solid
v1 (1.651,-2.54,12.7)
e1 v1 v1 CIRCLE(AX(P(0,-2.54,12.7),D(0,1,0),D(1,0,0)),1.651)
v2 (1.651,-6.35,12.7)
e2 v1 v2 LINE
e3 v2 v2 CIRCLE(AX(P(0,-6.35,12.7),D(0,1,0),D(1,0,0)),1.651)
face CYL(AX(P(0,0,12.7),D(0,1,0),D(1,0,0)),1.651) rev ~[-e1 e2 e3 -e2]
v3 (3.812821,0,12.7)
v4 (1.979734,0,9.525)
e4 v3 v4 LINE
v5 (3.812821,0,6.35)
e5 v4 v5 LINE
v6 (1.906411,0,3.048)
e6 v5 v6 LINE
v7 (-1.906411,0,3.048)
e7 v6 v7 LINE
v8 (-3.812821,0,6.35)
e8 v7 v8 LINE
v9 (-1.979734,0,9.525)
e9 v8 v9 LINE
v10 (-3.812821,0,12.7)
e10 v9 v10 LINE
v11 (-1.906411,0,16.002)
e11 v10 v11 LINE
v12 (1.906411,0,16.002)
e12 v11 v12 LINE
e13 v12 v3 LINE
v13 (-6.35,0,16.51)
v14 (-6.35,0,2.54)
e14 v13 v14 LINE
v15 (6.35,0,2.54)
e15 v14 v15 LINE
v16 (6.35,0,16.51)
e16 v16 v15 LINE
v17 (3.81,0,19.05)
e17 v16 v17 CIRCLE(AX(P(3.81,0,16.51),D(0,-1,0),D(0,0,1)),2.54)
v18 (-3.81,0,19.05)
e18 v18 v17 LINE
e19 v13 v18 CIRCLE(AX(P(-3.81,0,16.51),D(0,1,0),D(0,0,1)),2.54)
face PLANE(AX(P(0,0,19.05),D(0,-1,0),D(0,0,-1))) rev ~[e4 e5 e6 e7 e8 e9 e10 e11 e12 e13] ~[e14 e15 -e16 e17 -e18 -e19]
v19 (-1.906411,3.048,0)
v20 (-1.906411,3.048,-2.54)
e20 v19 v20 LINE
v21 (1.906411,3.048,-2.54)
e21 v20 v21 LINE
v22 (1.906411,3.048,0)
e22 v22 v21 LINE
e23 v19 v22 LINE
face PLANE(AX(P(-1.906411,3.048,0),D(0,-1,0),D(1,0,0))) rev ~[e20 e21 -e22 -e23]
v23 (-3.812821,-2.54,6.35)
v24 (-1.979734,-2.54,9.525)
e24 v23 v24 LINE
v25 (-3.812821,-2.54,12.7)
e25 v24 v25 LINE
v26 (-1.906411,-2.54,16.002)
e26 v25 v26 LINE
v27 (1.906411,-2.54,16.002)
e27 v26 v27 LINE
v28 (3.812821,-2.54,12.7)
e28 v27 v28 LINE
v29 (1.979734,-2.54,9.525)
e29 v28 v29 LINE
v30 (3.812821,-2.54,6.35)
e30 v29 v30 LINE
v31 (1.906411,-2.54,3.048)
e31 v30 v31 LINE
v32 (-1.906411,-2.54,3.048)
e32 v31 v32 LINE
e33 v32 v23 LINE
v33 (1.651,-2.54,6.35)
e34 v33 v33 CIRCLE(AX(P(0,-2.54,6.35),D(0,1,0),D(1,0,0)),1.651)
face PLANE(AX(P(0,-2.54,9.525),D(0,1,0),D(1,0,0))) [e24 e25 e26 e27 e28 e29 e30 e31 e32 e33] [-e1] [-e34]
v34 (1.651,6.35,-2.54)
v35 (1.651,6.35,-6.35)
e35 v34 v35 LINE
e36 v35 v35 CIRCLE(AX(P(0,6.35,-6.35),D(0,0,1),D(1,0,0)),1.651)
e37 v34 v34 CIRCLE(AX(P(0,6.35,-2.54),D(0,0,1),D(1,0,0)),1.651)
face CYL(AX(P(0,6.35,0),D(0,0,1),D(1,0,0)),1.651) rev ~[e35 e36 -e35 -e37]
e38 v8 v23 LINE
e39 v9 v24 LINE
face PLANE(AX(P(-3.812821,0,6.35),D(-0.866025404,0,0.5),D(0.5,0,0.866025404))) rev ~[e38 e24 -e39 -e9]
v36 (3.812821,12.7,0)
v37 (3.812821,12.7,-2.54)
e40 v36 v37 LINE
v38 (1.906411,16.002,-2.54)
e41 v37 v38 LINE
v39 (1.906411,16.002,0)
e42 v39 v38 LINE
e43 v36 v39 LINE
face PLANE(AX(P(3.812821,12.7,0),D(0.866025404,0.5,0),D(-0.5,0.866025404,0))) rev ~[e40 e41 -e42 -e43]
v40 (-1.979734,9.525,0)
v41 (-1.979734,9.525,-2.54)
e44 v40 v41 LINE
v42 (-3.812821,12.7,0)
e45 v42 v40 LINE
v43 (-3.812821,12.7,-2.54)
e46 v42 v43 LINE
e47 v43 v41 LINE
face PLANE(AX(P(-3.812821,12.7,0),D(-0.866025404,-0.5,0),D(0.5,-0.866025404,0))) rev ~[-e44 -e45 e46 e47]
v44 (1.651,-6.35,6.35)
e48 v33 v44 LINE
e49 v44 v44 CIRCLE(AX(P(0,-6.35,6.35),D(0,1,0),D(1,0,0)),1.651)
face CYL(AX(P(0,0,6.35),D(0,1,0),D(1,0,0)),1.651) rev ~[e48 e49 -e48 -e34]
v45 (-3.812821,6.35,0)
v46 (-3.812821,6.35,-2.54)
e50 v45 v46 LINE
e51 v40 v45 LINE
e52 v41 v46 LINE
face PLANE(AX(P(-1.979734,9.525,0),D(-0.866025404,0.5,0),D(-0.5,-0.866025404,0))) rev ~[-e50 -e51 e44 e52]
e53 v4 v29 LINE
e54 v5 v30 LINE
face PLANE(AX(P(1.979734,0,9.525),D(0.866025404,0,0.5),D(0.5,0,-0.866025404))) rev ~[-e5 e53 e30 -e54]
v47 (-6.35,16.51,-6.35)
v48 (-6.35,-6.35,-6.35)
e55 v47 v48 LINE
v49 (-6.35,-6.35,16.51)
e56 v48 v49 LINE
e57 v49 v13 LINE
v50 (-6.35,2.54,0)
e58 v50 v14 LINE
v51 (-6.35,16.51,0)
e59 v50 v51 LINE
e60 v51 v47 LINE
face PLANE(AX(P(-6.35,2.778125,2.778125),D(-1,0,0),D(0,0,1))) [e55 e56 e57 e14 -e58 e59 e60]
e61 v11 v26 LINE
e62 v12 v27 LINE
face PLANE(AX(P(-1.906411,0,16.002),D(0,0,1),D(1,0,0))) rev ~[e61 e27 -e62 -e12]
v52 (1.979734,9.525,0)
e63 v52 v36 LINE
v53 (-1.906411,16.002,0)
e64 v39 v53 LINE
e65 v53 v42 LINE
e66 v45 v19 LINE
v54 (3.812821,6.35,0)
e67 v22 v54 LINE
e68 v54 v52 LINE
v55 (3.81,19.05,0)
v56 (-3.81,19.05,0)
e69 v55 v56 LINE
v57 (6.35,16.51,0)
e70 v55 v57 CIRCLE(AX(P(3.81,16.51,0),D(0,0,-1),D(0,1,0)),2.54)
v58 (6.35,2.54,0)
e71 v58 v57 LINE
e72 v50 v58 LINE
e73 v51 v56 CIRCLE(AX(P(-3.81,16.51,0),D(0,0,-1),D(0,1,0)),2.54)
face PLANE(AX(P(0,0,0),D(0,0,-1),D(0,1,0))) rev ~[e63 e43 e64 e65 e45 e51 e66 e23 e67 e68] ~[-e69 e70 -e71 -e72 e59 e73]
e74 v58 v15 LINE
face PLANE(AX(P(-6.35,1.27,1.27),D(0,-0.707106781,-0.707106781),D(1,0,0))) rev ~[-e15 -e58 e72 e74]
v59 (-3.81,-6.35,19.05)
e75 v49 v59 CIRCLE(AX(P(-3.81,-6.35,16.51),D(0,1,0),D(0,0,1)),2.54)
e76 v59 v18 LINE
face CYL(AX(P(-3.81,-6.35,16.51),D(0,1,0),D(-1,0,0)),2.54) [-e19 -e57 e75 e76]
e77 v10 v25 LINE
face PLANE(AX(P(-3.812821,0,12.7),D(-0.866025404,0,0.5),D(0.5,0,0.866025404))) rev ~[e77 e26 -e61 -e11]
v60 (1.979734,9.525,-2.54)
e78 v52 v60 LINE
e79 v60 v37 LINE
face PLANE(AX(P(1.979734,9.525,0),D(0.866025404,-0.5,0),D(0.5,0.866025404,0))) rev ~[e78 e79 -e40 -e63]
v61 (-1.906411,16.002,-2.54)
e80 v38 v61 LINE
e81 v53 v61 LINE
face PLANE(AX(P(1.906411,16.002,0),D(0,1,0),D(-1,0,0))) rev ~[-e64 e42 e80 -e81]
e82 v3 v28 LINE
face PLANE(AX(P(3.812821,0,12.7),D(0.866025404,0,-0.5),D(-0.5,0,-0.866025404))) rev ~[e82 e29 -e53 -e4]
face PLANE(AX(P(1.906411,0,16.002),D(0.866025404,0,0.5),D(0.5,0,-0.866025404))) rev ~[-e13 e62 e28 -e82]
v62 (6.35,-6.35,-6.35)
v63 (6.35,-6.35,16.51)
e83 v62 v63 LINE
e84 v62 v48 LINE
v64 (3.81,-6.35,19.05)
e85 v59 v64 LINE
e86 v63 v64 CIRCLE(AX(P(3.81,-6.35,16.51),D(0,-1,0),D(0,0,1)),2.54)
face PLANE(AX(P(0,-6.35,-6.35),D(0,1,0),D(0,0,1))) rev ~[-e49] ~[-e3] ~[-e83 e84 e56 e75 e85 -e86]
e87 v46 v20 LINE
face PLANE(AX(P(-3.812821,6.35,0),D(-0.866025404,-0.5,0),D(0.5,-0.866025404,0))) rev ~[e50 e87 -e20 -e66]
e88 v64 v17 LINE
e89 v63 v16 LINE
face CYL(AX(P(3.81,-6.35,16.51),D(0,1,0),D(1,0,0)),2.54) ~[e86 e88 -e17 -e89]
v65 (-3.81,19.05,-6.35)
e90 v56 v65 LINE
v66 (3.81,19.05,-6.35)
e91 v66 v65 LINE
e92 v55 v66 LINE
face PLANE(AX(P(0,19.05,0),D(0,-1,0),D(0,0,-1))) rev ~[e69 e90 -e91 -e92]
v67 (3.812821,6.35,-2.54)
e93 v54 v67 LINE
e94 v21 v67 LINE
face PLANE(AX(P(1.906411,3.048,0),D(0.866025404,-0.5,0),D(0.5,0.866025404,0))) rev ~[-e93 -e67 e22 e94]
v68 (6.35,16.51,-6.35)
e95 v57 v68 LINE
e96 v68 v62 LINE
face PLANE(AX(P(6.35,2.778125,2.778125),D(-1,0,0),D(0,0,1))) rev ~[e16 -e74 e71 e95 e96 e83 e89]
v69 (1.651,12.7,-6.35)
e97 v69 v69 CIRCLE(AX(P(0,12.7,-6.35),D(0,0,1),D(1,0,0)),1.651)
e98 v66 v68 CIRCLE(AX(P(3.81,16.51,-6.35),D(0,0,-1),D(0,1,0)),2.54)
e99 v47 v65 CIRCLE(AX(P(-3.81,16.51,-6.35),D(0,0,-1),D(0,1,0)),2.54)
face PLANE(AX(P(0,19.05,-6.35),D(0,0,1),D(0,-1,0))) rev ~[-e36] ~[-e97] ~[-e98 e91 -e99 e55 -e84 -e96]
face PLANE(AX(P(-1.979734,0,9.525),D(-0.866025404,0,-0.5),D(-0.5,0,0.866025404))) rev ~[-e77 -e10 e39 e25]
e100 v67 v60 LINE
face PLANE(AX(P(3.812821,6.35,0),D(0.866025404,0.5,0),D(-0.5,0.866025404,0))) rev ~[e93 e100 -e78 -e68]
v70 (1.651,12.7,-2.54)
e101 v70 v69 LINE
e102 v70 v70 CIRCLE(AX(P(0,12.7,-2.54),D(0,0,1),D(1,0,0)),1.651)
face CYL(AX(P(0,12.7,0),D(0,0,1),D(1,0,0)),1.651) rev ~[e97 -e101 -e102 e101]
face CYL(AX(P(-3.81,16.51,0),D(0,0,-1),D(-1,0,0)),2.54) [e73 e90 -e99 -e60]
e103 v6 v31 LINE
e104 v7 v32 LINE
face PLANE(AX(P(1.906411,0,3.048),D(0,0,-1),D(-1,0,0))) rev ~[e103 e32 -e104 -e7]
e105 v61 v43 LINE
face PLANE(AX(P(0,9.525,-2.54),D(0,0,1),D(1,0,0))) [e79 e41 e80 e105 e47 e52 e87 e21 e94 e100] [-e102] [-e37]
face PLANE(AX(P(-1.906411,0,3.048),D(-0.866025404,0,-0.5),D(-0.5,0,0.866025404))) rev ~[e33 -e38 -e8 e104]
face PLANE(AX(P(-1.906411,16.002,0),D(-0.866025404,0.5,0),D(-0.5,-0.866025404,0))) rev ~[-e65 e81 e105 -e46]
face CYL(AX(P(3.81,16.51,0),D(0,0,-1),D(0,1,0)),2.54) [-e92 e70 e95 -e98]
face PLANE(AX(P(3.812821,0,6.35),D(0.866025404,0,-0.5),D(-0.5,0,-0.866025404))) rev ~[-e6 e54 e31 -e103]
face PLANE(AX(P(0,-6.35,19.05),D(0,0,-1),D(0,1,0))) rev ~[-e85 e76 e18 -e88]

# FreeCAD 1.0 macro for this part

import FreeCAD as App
import Part
import Sketcher
Q = App.Units.Quantity


def edges_at(feature, points):
    """Names of the edges that pass closest to the given points."""
    edges = feature.Shape.Edges
    near = lambda p: min(range(len(edges)), key=lambda i: edges[i].distToShape(Part.Vertex(*p))[0])
    return sorted({f"Edge{near(p) + 1}" for p in points})

doc = App.newDocument("Part")
body = doc.addObject("PartDesign::Body", "Body")

sketch1 = doc.addObject("Sketcher::SketchObject", "Sketch")
body.addObject(sketch1)
sketch1.AttachmentSupport = (doc.YZ_Plane, [""])
sketch1.MapMode = "FlatFace"
sketch1.addGeometry([
    Part.LineSegment(App.Vector(19, 0, 0), App.Vector(0, 0, 0)),
    Part.LineSegment(App.Vector(0, 0, 0), App.Vector(0, 19, 0)),
    Part.LineSegment(App.Vector(0, 19, 0), App.Vector(-6, 19, 0)),
    Part.LineSegment(App.Vector(-6, 19, 0), App.Vector(-6, -6, 0)),
    Part.LineSegment(App.Vector(-6, -6, 0), App.Vector(19, -6, 0)),
    Part.LineSegment(App.Vector(19, -6, 0), App.Vector(19, 0, 0)),
], False)
sketch1.addConstraint([
    Sketcher.Constraint("Coincident", 0, 2, 1, 1),
    Sketcher.Constraint("Coincident", 1, 2, 2, 1),
    Sketcher.Constraint("Coincident", 2, 2, 3, 1),
    Sketcher.Constraint("Coincident", 3, 2, 4, 1),
    Sketcher.Constraint("Coincident", 4, 2, 5, 1),
    Sketcher.Constraint("Coincident", 5, 2, 0, 1),
    Sketcher.Constraint("Horizontal", 0),
    Sketcher.Constraint("Vertical", 1),
    Sketcher.Constraint("Horizontal", 2),
    Sketcher.Constraint("Vertical", 3),
    Sketcher.Constraint("Horizontal", 4),
    Sketcher.Constraint("Vertical", 5),
    Sketcher.Constraint("Coincident", 0, 2, -1, 1),
    Sketcher.Constraint("Equal", 0, 1),
    Sketcher.Constraint("Equal", 4, 3),
    Sketcher.Constraint("DistanceX", 4, 1, 4, 2, Q("1 in")),
    Sketcher.Constraint("DistanceX", 0, 2, 0, 1, Q("0.75 in")),
])
pad1 = doc.addObject("PartDesign::Pad", "Pad")
body.addObject(pad1)
pad1.Profile = sketch1
pad1.Type = "TwoLengths"
pad1.Length = Q("0.25 in")
pad1.Length2 = Q("0.25 in")

sketch2 = doc.addObject("Sketcher::SketchObject", "Sketch001")
body.addObject(sketch2)
sketch2.AttachmentSupport = (doc.XZ_Plane, [""])
sketch2.MapMode = "FlatFace"
sketch2.addGeometry([
    Part.Circle(App.Vector(0, 6.3, 0), App.Vector(0, 0, 1), 1.7),
    Part.Circle(App.Vector(0, 12.7, 0), App.Vector(0, 0, 1), 1.7),
], False)
sketch2.addConstraint([
    Sketcher.Constraint("Equal", 0, 1),
    Sketcher.Constraint("PointOnObject", 0, 3, -2),
    Sketcher.Constraint("PointOnObject", 1, 3, -2),
    Sketcher.Constraint("Diameter", 0, Q("0.13 in")),
    Sketcher.Constraint("DistanceY", -1, 1, 1, 3, Q("0.5 in")),
    Sketcher.Constraint("DistanceY", -1, 1, 0, 3, Q("0.25 in")),
])
pocket1 = doc.addObject("PartDesign::Pocket", "Pocket")
body.addObject(pocket1)
pocket1.Profile = sketch2
pocket1.Length = Q("1 in")
pocket1.Reversed = True

sketch3 = doc.addObject("Sketcher::SketchObject", "Sketch002")
body.addObject(sketch3)
sketch3.AttachmentSupport = (doc.XZ_Plane, [""])
sketch3.MapMode = "FlatFace"
sketch3.addGeometry([
    Part.LineSegment(App.Vector(1.9, 3, 0), App.Vector(-1.9, 3, 0)),
    Part.LineSegment(App.Vector(-1.9, 3, 0), App.Vector(-3.8, 6.3, 0)),
    Part.LineSegment(App.Vector(-3.8, 6.3, 0), App.Vector(-2, 9.5, 0)),
    Part.LineSegment(App.Vector(-2, 9.5, 0), App.Vector(-3.8, 12.7, 0)),
    Part.LineSegment(App.Vector(-3.8, 12.7, 0), App.Vector(-1.9, 16, 0)),
    Part.LineSegment(App.Vector(-1.9, 16, 0), App.Vector(1.9, 16, 0)),
    Part.LineSegment(App.Vector(1.9, 16, 0), App.Vector(3.8, 12.7, 0)),
    Part.LineSegment(App.Vector(3.8, 12.7, 0), App.Vector(2, 9.5, 0)),
    Part.LineSegment(App.Vector(2, 9.5, 0), App.Vector(3.8, 6.3, 0)),
    Part.LineSegment(App.Vector(3.8, 6.3, 0), App.Vector(1.9, 3, 0)),
], False)
sketch3.addConstraint([
    Sketcher.Constraint("Coincident", 0, 2, 1, 1),
    Sketcher.Constraint("Coincident", 1, 2, 2, 1),
    Sketcher.Constraint("Coincident", 2, 2, 3, 1),
    Sketcher.Constraint("Coincident", 3, 2, 4, 1),
    Sketcher.Constraint("Coincident", 4, 2, 5, 1),
    Sketcher.Constraint("Coincident", 5, 2, 6, 1),
    Sketcher.Constraint("Coincident", 6, 2, 7, 1),
    Sketcher.Constraint("Coincident", 7, 2, 8, 1),
    Sketcher.Constraint("Coincident", 8, 2, 9, 1),
    Sketcher.Constraint("Coincident", 9, 2, 0, 1),
    Sketcher.Constraint("Horizontal", 0),
    Sketcher.Constraint("Horizontal", 5),
    Sketcher.Constraint("Symmetric", 3, 2, 6, 2, -2),
    Sketcher.Constraint("Symmetric", 2, 2, 7, 2, -2),
    Sketcher.Constraint("Symmetric", 1, 2, 8, 2, -2),
    Sketcher.Constraint("Parallel", 1, 3),
    Sketcher.Constraint("Parallel", 2, 4),
    Sketcher.Constraint("Parallel", 3, 6),
    Sketcher.Constraint("Parallel", 4, 7),
    Sketcher.Constraint("Parallel", 7, 9),
    Sketcher.Constraint("Vertical", 1, 2, 3, 2),
    Sketcher.Constraint("Vertical", 0, 2, 4, 2),
    Sketcher.Constraint("Angle", 1, Q("120 deg")),
    Sketcher.Constraint("DistanceY", -1, 1, 3, 2, Q("0.5 in")),
    Sketcher.Constraint("DistanceY", -1, 1, 0, 2, Q("0.12 in")),
    Sketcher.Constraint("DistanceY", -1, 1, 1, 2, Q("0.25 in")),
    Sketcher.Constraint("DistanceX", 0, 2, 0, 1, 3.812821),
])
pocket2 = doc.addObject("PartDesign::Pocket", "Pocket001")
body.addObject(pocket2)
pocket2.Profile = sketch3
pocket2.Length = Q("0.1 in")
pocket2.Reversed = True

sketch4 = doc.addObject("Sketcher::SketchObject", "Sketch003")
body.addObject(sketch4)
sketch4.AttachmentSupport = (doc.XY_Plane, [""])
sketch4.MapMode = "FlatFace"
sketch4.addGeometry([
    Part.Circle(App.Vector(0, 12.7, 0), App.Vector(0, 0, 1), 1.7),
    Part.Circle(App.Vector(0, 6.3, 0), App.Vector(0, 0, 1), 1.7),
], False)
sketch4.addConstraint([
    Sketcher.Constraint("Equal", 0, 1),
    Sketcher.Constraint("PointOnObject", 0, 3, -2),
    Sketcher.Constraint("PointOnObject", 1, 3, -2),
    Sketcher.Constraint("Diameter", 0, Q("0.13 in")),
    Sketcher.Constraint("DistanceY", -1, 1, 0, 3, Q("0.5 in")),
    Sketcher.Constraint("DistanceY", -1, 1, 1, 3, Q("0.25 in")),
])
pocket3 = doc.addObject("PartDesign::Pocket", "Pocket002")
body.addObject(pocket3)
pocket3.Profile = sketch4
pocket3.Length = Q("0.25 in")

sketch5 = doc.addObject("Sketcher::SketchObject", "Sketch004")
body.addObject(sketch5)
sketch5.AttachmentSupport = (doc.XY_Plane, [""])
sketch5.MapMode = "FlatFace"
sketch5.addGeometry([
    Part.LineSegment(App.Vector(1.9, 16, 0), App.Vector(-1.9, 16, 0)),
    Part.LineSegment(App.Vector(-1.9, 16, 0), App.Vector(-3.8, 12.7, 0)),
    Part.LineSegment(App.Vector(-3.8, 12.7, 0), App.Vector(-2, 9.5, 0)),
    Part.LineSegment(App.Vector(-2, 9.5, 0), App.Vector(-3.8, 6.3, 0)),
    Part.LineSegment(App.Vector(-3.8, 6.3, 0), App.Vector(-1.9, 3, 0)),
    Part.LineSegment(App.Vector(-1.9, 3, 0), App.Vector(1.9, 3, 0)),
    Part.LineSegment(App.Vector(1.9, 3, 0), App.Vector(3.8, 6.3, 0)),
    Part.LineSegment(App.Vector(3.8, 6.3, 0), App.Vector(2, 9.5, 0)),
    Part.LineSegment(App.Vector(2, 9.5, 0), App.Vector(3.8, 12.7, 0)),
    Part.LineSegment(App.Vector(3.8, 12.7, 0), App.Vector(1.9, 16, 0)),
], False)
sketch5.addConstraint([
    Sketcher.Constraint("Coincident", 0, 2, 1, 1),
    Sketcher.Constraint("Coincident", 1, 2, 2, 1),
    Sketcher.Constraint("Coincident", 2, 2, 3, 1),
    Sketcher.Constraint("Coincident", 3, 2, 4, 1),
    Sketcher.Constraint("Coincident", 4, 2, 5, 1),
    Sketcher.Constraint("Coincident", 5, 2, 6, 1),
    Sketcher.Constraint("Coincident", 6, 2, 7, 1),
    Sketcher.Constraint("Coincident", 7, 2, 8, 1),
    Sketcher.Constraint("Coincident", 8, 2, 9, 1),
    Sketcher.Constraint("Coincident", 9, 2, 0, 1),
    Sketcher.Constraint("Horizontal", 0),
    Sketcher.Constraint("Horizontal", 5),
    Sketcher.Constraint("Symmetric", 3, 2, 6, 2, -2),
    Sketcher.Constraint("Symmetric", 2, 2, 7, 2, -2),
    Sketcher.Constraint("Symmetric", 1, 2, 8, 2, -2),
    Sketcher.Constraint("Parallel", 1, 3),
    Sketcher.Constraint("Parallel", 2, 4),
    Sketcher.Constraint("Parallel", 3, 6),
    Sketcher.Constraint("Parallel", 4, 7),
    Sketcher.Constraint("Parallel", 7, 9),
    Sketcher.Constraint("Vertical", 1, 2, 3, 2),
    Sketcher.Constraint("Vertical", 0, 2, 4, 2),
    Sketcher.Constraint("Angle", 1, Q("-120 deg")),
    Sketcher.Constraint("DistanceY", -1, 1, 1, 2, Q("0.5 in")),
    Sketcher.Constraint("DistanceY", -1, 1, 0, 2, Q("0.63 in")),
    Sketcher.Constraint("DistanceY", -1, 1, 3, 2, Q("0.25 in")),
    Sketcher.Constraint("DistanceX", 0, 2, 0, 1, 3.812821),
])
pocket4 = doc.addObject("PartDesign::Pocket", "Pocket003")
body.addObject(pocket4)
pocket4.Profile = sketch5
pocket4.Length = Q("0.1 in")
doc.recompute()

chamfer = doc.addObject("PartDesign::Chamfer", "Chamfer")
body.addObject(chamfer)
chamfer.Base = (pocket4, edges_at(pocket4, [(0, 0, 0)]))
chamfer.Size = Q("0.1 in")
doc.recompute()

fillet = doc.addObject("PartDesign::Fillet", "Fillet")
body.addObject(fillet)
fillet.Base = (chamfer, edges_at(chamfer, [
    (6.35, -3.175, 19.05),
    (6.35, 19.05, -3.175),
    (-6.35, 19.05, -3.175),
    (-6.35, -3.175, 19.05),
]))
fillet.Radius = Q("0.1 in")

doc.recompute()
